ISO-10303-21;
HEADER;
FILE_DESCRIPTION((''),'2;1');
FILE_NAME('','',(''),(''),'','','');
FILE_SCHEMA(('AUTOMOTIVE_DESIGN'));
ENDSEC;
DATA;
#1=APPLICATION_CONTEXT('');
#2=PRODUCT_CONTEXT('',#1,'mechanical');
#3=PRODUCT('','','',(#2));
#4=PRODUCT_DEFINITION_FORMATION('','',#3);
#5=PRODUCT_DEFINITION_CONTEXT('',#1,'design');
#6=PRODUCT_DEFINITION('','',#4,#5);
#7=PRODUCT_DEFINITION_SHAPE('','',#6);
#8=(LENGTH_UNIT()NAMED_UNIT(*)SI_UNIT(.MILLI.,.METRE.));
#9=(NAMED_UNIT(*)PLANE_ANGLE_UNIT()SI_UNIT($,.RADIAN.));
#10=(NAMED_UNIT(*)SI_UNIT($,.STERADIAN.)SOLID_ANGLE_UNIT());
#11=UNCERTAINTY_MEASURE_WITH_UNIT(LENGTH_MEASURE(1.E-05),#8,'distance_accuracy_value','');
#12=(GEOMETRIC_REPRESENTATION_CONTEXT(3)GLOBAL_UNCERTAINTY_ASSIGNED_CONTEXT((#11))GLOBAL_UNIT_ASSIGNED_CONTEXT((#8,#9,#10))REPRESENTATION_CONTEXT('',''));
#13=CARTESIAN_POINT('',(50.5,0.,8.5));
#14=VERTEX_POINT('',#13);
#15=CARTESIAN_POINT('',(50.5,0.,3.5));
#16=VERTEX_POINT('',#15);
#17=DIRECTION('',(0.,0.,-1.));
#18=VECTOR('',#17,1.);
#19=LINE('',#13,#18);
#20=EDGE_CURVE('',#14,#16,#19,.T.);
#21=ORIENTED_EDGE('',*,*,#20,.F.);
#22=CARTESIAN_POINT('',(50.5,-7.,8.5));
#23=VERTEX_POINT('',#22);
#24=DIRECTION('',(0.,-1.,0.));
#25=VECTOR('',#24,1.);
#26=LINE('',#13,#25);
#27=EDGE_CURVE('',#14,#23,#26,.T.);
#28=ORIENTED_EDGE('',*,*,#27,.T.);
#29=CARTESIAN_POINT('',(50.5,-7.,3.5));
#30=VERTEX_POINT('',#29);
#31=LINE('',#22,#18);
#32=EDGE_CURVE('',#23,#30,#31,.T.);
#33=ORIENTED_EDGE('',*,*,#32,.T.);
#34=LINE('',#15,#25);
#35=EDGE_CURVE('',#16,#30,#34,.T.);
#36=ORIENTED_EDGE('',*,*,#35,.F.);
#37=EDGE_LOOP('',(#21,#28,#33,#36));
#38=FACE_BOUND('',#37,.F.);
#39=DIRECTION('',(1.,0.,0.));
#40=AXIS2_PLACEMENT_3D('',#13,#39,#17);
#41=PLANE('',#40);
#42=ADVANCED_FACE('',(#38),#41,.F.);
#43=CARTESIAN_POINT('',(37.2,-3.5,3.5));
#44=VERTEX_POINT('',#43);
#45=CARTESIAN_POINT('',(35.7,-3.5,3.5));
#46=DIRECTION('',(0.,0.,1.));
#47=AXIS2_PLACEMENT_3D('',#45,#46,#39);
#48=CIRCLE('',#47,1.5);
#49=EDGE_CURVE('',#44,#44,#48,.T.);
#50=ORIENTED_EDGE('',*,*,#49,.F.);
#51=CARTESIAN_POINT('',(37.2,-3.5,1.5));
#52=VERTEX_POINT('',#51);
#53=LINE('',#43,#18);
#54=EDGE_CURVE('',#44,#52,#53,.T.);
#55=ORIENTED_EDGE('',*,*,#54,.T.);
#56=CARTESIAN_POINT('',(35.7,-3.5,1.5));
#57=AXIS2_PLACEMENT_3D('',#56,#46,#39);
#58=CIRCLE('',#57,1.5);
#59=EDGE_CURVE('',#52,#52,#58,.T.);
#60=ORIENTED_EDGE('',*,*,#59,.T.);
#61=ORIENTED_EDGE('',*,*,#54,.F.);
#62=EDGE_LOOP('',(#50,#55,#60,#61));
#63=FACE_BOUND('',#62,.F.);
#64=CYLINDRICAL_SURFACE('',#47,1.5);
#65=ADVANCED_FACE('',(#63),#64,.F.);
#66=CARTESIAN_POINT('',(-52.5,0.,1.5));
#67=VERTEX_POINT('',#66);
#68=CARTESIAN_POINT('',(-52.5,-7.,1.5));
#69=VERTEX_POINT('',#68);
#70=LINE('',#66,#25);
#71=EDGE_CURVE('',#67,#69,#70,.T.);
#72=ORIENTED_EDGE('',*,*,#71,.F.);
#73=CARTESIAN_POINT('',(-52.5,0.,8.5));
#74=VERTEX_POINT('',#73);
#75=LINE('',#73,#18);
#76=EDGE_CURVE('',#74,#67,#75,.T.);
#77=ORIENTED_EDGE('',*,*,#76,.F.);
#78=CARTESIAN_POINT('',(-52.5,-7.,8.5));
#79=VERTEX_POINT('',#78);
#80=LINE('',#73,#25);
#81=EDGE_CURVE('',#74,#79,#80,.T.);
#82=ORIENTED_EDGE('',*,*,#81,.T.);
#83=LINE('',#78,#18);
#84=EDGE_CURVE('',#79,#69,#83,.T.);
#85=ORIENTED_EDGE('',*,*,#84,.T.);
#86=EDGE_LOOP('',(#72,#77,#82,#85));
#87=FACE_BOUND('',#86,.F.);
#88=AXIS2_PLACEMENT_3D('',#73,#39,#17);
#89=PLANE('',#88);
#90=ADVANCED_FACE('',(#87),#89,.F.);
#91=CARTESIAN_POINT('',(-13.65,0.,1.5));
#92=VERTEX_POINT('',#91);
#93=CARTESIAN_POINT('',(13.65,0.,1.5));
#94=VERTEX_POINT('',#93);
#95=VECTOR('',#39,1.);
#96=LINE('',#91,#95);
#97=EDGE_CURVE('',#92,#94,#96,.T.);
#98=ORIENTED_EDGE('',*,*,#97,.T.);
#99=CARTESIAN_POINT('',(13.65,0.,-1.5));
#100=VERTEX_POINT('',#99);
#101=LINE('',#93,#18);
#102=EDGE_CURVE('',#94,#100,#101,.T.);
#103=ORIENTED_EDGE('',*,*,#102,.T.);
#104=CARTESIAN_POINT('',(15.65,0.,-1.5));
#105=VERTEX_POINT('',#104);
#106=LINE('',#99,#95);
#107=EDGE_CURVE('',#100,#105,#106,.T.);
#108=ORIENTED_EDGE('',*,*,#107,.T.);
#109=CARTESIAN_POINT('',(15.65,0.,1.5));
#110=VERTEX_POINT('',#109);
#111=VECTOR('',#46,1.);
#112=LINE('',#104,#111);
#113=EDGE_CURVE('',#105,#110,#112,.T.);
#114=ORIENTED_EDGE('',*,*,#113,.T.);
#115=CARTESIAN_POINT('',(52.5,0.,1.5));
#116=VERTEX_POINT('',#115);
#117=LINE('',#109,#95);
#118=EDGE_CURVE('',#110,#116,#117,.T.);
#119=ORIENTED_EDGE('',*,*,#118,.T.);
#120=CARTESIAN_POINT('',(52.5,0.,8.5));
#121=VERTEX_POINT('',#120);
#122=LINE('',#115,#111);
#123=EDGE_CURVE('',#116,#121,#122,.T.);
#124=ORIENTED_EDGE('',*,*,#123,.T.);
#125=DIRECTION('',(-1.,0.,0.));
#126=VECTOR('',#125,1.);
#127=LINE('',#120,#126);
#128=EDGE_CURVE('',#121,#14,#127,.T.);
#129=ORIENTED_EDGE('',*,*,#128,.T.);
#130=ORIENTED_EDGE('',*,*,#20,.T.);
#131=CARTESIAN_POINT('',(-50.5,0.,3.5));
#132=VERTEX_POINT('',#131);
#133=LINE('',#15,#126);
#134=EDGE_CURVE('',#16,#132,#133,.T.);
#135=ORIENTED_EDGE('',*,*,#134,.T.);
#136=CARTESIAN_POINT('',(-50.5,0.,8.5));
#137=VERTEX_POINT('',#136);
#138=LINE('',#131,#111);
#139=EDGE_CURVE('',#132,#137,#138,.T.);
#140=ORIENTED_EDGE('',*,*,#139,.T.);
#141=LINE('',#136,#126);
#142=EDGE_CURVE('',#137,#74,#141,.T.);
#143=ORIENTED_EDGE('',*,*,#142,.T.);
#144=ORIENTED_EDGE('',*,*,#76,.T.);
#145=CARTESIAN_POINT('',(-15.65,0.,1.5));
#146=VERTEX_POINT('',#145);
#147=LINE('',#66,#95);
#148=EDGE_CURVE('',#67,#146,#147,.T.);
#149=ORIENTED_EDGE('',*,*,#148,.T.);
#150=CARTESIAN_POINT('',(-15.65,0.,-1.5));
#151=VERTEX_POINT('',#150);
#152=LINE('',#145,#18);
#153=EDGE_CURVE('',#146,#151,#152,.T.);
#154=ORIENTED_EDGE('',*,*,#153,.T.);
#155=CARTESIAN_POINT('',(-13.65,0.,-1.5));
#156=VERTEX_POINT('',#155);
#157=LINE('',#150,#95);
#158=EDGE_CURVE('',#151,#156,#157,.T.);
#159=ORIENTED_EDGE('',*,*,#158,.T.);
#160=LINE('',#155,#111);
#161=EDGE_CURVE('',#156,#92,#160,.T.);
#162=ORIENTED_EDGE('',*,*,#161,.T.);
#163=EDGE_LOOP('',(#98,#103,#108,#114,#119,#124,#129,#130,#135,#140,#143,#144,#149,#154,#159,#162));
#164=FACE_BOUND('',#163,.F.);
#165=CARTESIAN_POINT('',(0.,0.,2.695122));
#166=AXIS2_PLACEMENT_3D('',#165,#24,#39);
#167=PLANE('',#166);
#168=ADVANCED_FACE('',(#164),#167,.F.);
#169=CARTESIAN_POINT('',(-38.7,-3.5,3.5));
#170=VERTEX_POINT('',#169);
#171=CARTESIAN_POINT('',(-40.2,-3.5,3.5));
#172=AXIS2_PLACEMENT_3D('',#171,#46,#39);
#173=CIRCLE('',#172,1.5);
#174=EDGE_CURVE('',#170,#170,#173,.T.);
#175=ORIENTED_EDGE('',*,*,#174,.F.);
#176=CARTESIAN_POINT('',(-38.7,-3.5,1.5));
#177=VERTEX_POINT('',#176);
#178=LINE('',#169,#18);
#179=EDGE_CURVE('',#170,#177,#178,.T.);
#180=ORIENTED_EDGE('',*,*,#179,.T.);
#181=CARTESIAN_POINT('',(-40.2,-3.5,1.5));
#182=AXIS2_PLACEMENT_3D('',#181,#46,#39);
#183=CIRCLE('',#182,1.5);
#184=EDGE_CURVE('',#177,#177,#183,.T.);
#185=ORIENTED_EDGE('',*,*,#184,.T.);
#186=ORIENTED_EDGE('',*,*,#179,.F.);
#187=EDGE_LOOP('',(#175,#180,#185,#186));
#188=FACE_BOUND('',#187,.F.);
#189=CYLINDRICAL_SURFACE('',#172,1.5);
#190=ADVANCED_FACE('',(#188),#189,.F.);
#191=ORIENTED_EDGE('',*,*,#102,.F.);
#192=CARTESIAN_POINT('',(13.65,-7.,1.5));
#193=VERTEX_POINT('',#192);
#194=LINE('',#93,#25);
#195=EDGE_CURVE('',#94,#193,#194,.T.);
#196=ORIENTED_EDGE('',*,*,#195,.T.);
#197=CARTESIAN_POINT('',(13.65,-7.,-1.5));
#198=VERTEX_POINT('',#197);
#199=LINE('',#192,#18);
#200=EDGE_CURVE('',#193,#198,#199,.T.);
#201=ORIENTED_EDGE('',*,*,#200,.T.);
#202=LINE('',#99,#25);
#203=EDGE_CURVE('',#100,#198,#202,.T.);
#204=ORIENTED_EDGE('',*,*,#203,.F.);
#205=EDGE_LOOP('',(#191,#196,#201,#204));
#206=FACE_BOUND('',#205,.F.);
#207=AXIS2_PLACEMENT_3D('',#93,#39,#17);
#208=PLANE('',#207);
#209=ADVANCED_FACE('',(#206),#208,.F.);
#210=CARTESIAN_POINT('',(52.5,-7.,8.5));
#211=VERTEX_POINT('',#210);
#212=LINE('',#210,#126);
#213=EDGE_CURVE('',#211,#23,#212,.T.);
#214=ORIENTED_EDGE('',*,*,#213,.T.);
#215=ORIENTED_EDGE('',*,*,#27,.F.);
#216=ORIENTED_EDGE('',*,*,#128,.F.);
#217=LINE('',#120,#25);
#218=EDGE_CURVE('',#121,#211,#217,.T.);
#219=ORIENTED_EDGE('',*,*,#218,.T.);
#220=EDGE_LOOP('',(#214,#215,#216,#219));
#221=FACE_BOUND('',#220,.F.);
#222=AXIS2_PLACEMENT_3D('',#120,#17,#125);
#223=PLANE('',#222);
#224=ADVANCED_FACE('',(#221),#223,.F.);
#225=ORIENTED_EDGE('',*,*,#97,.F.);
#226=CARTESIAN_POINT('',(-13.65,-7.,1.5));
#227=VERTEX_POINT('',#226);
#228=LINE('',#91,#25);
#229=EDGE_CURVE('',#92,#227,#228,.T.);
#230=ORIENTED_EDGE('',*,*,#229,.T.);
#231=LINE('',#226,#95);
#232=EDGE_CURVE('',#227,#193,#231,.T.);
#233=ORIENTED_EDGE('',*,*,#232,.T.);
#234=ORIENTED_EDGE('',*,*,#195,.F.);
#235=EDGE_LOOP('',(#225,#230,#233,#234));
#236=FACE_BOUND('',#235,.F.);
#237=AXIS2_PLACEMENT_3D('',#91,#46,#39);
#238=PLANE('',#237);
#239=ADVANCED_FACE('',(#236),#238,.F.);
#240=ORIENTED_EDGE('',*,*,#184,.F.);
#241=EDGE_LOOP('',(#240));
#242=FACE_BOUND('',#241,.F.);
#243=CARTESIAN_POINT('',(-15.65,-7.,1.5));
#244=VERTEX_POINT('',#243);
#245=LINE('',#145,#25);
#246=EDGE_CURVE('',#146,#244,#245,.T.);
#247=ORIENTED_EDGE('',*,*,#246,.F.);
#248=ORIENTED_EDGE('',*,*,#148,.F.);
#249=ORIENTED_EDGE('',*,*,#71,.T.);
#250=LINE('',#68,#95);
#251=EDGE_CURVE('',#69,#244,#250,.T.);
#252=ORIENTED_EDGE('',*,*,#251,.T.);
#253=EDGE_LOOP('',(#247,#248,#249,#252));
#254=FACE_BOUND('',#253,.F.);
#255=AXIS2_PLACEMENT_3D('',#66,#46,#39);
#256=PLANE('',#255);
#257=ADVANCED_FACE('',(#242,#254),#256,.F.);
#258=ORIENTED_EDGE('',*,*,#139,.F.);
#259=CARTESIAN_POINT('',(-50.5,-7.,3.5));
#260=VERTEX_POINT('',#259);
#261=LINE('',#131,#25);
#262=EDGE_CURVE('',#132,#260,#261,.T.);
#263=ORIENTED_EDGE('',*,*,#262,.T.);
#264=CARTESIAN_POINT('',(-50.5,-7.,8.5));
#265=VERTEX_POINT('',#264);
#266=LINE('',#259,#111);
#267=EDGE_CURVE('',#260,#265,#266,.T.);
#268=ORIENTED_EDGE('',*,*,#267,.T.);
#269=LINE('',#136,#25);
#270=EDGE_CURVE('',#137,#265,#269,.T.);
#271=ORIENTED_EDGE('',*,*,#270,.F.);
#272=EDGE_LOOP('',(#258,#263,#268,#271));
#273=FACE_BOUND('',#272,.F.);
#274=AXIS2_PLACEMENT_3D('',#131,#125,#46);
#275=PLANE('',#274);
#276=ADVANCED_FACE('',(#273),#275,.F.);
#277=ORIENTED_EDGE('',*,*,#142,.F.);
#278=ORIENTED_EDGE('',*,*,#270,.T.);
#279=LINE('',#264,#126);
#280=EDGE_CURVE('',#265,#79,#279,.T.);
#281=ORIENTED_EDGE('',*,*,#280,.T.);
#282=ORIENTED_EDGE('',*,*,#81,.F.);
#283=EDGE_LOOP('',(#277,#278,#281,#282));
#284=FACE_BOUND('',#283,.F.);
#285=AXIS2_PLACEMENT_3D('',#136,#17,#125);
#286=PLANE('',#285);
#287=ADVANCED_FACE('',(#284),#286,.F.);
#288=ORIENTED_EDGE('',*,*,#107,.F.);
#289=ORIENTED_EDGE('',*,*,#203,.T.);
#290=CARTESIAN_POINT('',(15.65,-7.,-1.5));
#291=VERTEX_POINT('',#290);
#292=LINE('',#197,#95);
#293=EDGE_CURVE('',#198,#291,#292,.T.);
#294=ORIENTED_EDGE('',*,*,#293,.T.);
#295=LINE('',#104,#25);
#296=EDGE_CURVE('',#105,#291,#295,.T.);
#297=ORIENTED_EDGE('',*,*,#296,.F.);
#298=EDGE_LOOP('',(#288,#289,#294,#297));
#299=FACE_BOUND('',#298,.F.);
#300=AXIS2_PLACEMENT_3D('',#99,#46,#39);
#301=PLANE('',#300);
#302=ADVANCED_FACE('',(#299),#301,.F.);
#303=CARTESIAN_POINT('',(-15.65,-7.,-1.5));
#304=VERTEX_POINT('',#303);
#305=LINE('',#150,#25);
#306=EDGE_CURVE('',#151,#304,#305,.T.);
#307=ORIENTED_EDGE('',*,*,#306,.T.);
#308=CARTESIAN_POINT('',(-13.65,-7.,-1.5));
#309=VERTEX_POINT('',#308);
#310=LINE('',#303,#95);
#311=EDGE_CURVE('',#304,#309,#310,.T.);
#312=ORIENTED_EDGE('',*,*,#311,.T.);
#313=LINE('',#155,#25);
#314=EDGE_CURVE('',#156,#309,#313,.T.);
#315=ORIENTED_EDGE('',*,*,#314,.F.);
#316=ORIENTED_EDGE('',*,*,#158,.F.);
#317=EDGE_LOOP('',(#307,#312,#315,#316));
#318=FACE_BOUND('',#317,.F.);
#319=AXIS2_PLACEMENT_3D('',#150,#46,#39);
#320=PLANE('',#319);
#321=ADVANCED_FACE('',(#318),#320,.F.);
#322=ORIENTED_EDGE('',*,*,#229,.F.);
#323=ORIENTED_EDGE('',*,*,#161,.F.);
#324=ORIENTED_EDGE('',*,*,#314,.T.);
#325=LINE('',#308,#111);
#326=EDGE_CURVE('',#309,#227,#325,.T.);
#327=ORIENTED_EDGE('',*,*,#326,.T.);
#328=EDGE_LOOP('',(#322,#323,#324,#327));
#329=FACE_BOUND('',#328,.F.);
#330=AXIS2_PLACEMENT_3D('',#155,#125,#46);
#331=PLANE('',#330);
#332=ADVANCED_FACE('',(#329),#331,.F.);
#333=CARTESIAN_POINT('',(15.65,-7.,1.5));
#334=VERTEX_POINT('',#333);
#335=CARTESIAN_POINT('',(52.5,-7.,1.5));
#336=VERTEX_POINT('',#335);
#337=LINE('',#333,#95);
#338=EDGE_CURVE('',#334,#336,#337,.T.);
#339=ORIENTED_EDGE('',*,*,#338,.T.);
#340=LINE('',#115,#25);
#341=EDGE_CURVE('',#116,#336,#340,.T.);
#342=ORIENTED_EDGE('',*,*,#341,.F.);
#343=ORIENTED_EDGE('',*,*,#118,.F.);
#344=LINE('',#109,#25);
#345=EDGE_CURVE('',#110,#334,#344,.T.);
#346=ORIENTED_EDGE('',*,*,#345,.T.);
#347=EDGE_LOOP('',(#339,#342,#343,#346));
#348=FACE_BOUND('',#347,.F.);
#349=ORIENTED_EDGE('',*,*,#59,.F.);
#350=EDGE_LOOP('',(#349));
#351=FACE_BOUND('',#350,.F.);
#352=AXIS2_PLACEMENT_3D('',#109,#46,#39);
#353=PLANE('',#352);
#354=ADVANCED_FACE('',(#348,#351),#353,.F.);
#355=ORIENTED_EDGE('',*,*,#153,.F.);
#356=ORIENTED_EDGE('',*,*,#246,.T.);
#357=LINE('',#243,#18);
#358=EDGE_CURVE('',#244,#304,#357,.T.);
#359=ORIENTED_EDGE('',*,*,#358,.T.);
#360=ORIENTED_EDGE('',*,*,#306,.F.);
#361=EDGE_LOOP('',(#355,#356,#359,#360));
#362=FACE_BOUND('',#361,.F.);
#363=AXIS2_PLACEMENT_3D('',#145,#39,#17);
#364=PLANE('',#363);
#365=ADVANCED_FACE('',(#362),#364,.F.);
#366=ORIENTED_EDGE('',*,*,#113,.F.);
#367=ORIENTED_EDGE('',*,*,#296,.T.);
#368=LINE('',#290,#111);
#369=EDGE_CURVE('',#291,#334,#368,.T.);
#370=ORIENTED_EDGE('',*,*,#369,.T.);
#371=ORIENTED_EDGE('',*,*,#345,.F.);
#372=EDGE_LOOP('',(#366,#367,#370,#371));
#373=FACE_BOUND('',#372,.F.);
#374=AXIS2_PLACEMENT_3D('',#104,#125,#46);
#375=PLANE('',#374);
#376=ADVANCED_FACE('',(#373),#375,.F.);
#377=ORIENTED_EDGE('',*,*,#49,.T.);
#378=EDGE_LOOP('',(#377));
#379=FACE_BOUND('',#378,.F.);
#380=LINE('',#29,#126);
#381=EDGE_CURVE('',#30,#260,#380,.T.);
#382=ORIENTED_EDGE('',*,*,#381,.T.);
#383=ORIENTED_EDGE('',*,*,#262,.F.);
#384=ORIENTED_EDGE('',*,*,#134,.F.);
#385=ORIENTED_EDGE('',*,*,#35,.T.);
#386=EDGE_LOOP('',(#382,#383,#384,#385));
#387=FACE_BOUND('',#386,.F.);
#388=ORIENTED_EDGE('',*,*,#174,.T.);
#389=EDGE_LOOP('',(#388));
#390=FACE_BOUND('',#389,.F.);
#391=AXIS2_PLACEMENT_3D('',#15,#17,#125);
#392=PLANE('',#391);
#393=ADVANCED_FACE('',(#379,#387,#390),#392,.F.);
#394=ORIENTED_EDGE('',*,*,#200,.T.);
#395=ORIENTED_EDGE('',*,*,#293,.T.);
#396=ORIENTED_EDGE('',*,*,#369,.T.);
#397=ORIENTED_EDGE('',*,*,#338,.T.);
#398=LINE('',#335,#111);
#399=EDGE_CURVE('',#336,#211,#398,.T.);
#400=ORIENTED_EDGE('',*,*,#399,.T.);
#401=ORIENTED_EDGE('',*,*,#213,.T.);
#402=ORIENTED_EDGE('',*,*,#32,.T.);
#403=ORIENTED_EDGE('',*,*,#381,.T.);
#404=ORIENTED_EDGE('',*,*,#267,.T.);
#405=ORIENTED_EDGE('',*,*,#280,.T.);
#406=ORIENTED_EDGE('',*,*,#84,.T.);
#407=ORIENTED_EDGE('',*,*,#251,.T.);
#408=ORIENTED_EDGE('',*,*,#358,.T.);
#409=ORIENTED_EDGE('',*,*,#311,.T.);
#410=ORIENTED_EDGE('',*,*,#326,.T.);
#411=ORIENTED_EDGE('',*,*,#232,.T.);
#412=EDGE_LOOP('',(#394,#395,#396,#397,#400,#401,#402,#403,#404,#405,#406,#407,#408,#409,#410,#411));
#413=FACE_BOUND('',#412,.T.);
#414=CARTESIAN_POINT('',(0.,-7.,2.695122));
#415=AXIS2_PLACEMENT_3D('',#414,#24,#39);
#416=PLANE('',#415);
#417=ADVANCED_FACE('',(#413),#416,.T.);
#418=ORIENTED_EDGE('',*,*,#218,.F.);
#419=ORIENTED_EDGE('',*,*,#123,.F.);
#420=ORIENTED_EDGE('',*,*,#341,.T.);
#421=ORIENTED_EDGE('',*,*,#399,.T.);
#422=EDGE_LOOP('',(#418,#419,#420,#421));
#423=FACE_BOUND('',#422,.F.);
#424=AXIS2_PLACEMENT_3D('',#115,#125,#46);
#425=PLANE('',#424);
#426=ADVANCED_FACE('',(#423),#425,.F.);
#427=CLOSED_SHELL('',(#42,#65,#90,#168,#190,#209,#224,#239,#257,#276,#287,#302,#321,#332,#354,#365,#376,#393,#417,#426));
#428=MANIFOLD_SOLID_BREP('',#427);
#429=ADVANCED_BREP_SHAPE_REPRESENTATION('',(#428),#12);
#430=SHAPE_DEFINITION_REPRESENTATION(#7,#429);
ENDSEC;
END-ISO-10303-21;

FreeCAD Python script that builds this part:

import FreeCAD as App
import Part
import Sketcher
from FreeCAD import Vector

doc = App.newDocument("Part")
body = doc.addObject("PartDesign::Body", "Body")

# Sketch on XZ plane
sketch1 = doc.addObject("Sketcher::SketchObject", "Sketch")
body.addObject(sketch1)
sketch1.AttachmentSupport = (doc.XZ_Plane, [""])
sketch1.MapMode = "FlatFace"
sketch1.addGeometry(Part.LineSegment(Vector(50.5, 8.5, 0), Vector(50.5, 3.5, 0)), False)
sketch1.addGeometry(Part.LineSegment(Vector(50.5, 3.5, 0), Vector(-50.5, 3.5, 0)), False)
sketch1.addGeometry(Part.LineSegment(Vector(-50.5, 3.5, 0), Vector(-50.5, 8.5, 0)), False)
sketch1.addGeometry(Part.LineSegment(Vector(-50.5, 8.5, 0), Vector(-52.5, 8.5, 0)), False)
sketch1.addGeometry(Part.LineSegment(Vector(-52.5, 8.5, 0), Vector(-52.5, 1.5, 0)), False)
sketch1.addGeometry(Part.LineSegment(Vector(-52.5, 1.5, 0), Vector(-15.65, 1.5, 0)), False)
sketch1.addGeometry(Part.LineSegment(Vector(-15.65, 1.5, 0), Vector(-15.65, -1.5, 0)), False)
sketch1.addGeometry(Part.LineSegment(Vector(-15.65, -1.5, 0), Vector(-13.65, -1.5, 0)), False)
sketch1.addGeometry(Part.LineSegment(Vector(-13.65, -1.5, 0), Vector(-13.65, 1.5, 0)), False)
sketch1.addGeometry(Part.LineSegment(Vector(-13.65, 1.5, 0), Vector(13.65, 1.5, 0)), False)
sketch1.addGeometry(Part.LineSegment(Vector(13.65, 1.5, 0), Vector(13.65, -1.5, 0)), False)
sketch1.addGeometry(Part.LineSegment(Vector(13.65, -1.5, 0), Vector(15.65, -1.5, 0)), False)
sketch1.addGeometry(Part.LineSegment(Vector(15.65, -1.5, 0), Vector(15.65, 1.5, 0)), False)
sketch1.addGeometry(Part.LineSegment(Vector(15.65, 1.5, 0), Vector(52.5, 1.5, 0)), False)
sketch1.addGeometry(Part.LineSegment(Vector(52.5, 1.5, 0), Vector(52.5, 8.5, 0)), False)
sketch1.addGeometry(Part.LineSegment(Vector(52.5, 8.5, 0), Vector(50.5, 8.5, 0)), False)
sketch1.addConstraint(Sketcher.Constraint("Coincident", 0, 2, 1, 1))
sketch1.addConstraint(Sketcher.Constraint("Coincident", 1, 2, 2, 1))
sketch1.addConstraint(Sketcher.Constraint("Coincident", 2, 2, 3, 1))
sketch1.addConstraint(Sketcher.Constraint("Coincident", 3, 2, 4, 1))
sketch1.addConstraint(Sketcher.Constraint("Coincident", 4, 2, 5, 1))
sketch1.addConstraint(Sketcher.Constraint("Coincident", 5, 2, 6, 1))
sketch1.addConstraint(Sketcher.Constraint("Coincident", 6, 2, 7, 1))
sketch1.addConstraint(Sketcher.Constraint("Coincident", 7, 2, 8, 1))
sketch1.addConstraint(Sketcher.Constraint("Coincident", 8, 2, 9, 1))
sketch1.addConstraint(Sketcher.Constraint("Coincident", 9, 2, 10, 1))
sketch1.addConstraint(Sketcher.Constraint("Coincident", 10, 2, 11, 1))
sketch1.addConstraint(Sketcher.Constraint("Coincident", 11, 2, 12, 1))
sketch1.addConstraint(Sketcher.Constraint("Coincident", 12, 2, 13, 1))
sketch1.addConstraint(Sketcher.Constraint("Coincident", 13, 2, 14, 1))
sketch1.addConstraint(Sketcher.Constraint("Coincident", 14, 2, 15, 1))
sketch1.addConstraint(Sketcher.Constraint("Coincident", 15, 2, 0, 1))
sketch1.addConstraint(Sketcher.Constraint("Vertical", 0))
sketch1.addConstraint(Sketcher.Constraint("Horizontal", 1))
sketch1.addConstraint(Sketcher.Constraint("Vertical", 2))
sketch1.addConstraint(Sketcher.Constraint("Horizontal", 3))
sketch1.addConstraint(Sketcher.Constraint("Vertical", 4))
sketch1.addConstraint(Sketcher.Constraint("Horizontal", 5))
sketch1.addConstraint(Sketcher.Constraint("Vertical", 6))
sketch1.addConstraint(Sketcher.Constraint("Horizontal", 7))
sketch1.addConstraint(Sketcher.Constraint("Vertical", 8))
sketch1.addConstraint(Sketcher.Constraint("Horizontal", 9))
sketch1.addConstraint(Sketcher.Constraint("Vertical", 10))
sketch1.addConstraint(Sketcher.Constraint("Horizontal", 11))
sketch1.addConstraint(Sketcher.Constraint("Vertical", 12))
sketch1.addConstraint(Sketcher.Constraint("Horizontal", 13))
sketch1.addConstraint(Sketcher.Constraint("Vertical", 14))
sketch1.addConstraint(Sketcher.Constraint("Horizontal", 15))
sketch1.addConstraint(Sketcher.Constraint("Symmetric", 7, 2, 9, 2, -1, 1))
sketch1.addConstraint(Sketcher.Constraint("Symmetric", 5, 2, 11, 2, -1, 1))
sketch1.addConstraint(Sketcher.Constraint("Symmetric", 4, 2, 13, 2, -2))
sketch1.addConstraint(Sketcher.Constraint("Symmetric", 2, 2, 15, 2, -2))
sketch1.addConstraint(Sketcher.Constraint("Horizontal", 5, 2, 8, 2))
sketch1.addConstraint(Sketcher.Constraint("Equal", 3, 7))
sketch1.addConstraint(Sketcher.Constraint("DistanceX", 1, 2, 1, 1, 101.0))
sketch1.addConstraint(Sketcher.Constraint("DistanceX", 3, 2, 3, 1, 2.0))
sketch1.addConstraint(Sketcher.Constraint("DistanceY", 0, 2, 0, 1, 5.0))
sketch1.addConstraint(Sketcher.Constraint("DistanceY", 4, 2, 4, 1, 7.0))
sketch1.addConstraint(Sketcher.Constraint("DistanceY", 6, 2, 6, 1, 3.0))
sketch1.addConstraint(Sketcher.Constraint("DistanceX", 9, 1, 9, 2, 27.3))
pad1 = doc.addObject("PartDesign::Pad", "Pad")
body.addObject(pad1)
pad1.Profile = sketch1
pad1.Length = 7

# Sketch on XY plane
sketch2 = doc.addObject("Sketcher::SketchObject", "Sketch001")
body.addObject(sketch2)
sketch2.AttachmentSupport = (doc.XY_Plane, [""])
sketch2.MapMode = "FlatFace"
sketch2.AttachmentOffset = App.Placement(Vector(0, 0, 3.5), App.Rotation())
sketch2.addGeometry(Part.Circle(Vector(-40.2, -3.5, 0), Vector(0, 0, 1), 1.5), False)
sketch2.addGeometry(Part.Circle(Vector(35.7, -3.5, 0), Vector(0, 0, 1), 1.5), False)
sketch2.addConstraint(Sketcher.Constraint("Equal", 0, 1))
sketch2.addConstraint(Sketcher.Constraint("Horizontal", 0, 3, 1, 3))
sketch2.addConstraint(Sketcher.Constraint("Diameter", 0, 3.0))
sketch2.addConstraint(Sketcher.Constraint("DistanceX", 0, 3, -1, 1, 40.2))
sketch2.addConstraint(Sketcher.Constraint("DistanceY", 0, 3, -1, 1, 3.5))
sketch2.addConstraint(Sketcher.Constraint("DistanceX", -1, 1, 1, 3, 35.7))
pocket1 = doc.addObject("PartDesign::Pocket", "Pocket")
body.addObject(pocket1)
pocket1.Profile = sketch2
pocket1.Type = "ThroughAll"

doc.recompute()
